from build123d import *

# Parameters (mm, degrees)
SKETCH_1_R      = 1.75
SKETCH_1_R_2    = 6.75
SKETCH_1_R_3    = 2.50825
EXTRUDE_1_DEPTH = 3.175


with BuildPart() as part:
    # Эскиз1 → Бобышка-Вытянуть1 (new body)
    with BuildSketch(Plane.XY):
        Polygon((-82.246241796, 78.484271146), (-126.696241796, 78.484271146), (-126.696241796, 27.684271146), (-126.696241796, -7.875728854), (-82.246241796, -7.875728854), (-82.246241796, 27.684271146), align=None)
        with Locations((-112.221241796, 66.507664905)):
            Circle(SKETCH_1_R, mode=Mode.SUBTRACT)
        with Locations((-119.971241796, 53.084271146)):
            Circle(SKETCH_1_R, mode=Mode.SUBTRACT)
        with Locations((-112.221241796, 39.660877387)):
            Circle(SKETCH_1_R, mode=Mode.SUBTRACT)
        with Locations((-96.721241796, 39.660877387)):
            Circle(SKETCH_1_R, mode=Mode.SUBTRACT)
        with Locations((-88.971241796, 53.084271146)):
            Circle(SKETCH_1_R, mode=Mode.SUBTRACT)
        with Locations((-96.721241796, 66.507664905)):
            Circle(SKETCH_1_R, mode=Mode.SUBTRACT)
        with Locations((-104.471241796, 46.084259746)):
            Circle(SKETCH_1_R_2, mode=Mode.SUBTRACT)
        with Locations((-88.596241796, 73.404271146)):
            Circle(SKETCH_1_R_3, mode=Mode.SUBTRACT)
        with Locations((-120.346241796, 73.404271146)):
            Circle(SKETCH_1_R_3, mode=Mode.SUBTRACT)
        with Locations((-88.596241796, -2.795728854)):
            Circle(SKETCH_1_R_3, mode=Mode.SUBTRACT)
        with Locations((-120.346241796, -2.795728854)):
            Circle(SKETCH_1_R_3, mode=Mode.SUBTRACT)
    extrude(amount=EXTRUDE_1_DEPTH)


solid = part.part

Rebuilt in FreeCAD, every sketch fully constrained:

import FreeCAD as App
import Part
import Sketcher
from FreeCAD import Vector
Q = App.Units.Quantity


def add_polygon(sketch, points):
    """Adds a closed chain of lines whose ends are joined by coincident constraints."""
    first, n = sketch.GeometryCount, len(points)
    for a, b in zip(points, points[1:] + points[:1]):
        sketch.addGeometry(Part.LineSegment(App.Vector(*a, 0), App.Vector(*b, 0)), False)
    for i in range(n):
        sketch.addConstraint(Sketcher.Constraint("Coincident", first + i, 2, first + (i + 1) % n, 1))

doc = App.newDocument("Part")
body = doc.addObject("PartDesign::Body", "Body")

sketch1 = doc.addObject("Sketcher::SketchObject", "Sketch")
body.addObject(sketch1)
sketch1.AttachmentSupport = (doc.XY_Plane, [""])
sketch1.MapMode = "FlatFace"
add_polygon(sketch1, [(-82.2, 78.5), (-126.7, 78.5), (-126.7, -7.9), (-82.2, -7.9)])
sketch1.addGeometry(Part.Circle(Vector(-120.3, -2.8, 0), Vector(0, 0, 1), 2.5), False)
sketch1.addGeometry(Part.Circle(Vector(-88.6, -2.8, 0), Vector(0, 0, 1), 2.5), False)
sketch1.addGeometry(Part.Circle(Vector(-120, 53.1, 0), Vector(0, 0, 1), 1.8), False)
sketch1.addGeometry(Part.Circle(Vector(-112.2, 39.7, 0), Vector(0, 0, 1), 1.8), False)
sketch1.addGeometry(Part.Circle(Vector(-120.3, 73.4, 0), Vector(0, 0, 1), 2.5), False)
sketch1.addGeometry(Part.Circle(Vector(-112.2, 66.5, 0), Vector(0, 0, 1), 1.8), False)
sketch1.addGeometry(Part.Circle(Vector(-96.7, 39.7, 0), Vector(0, 0, 1), 1.8), False)
sketch1.addGeometry(Part.Circle(Vector(-104.5, 46.1, 0), Vector(0, 0, 1), 6.8), False)
sketch1.addGeometry(Part.Circle(Vector(-89, 53.1, 0), Vector(0, 0, 1), 1.8), False)
sketch1.addGeometry(Part.Circle(Vector(-96.7, 66.5, 0), Vector(0, 0, 1), 1.8), False)
sketch1.addGeometry(Part.Circle(Vector(-88.6, 73.4, 0), Vector(0, 0, 1), 2.5), False)
sketch1.addConstraint([
    Sketcher.Constraint("Horizontal", 0),
    Sketcher.Constraint("Vertical", 1),
    Sketcher.Constraint("Horizontal", 2),
    Sketcher.Constraint("Vertical", 3),
    Sketcher.Constraint("Equal", 4, 5),
    Sketcher.Constraint("Equal", 6, 7),
    Sketcher.Constraint("Equal", 5, 8),
    Sketcher.Constraint("Equal", 7, 9),
    Sketcher.Constraint("Equal", 9, 10),
    Sketcher.Constraint("Equal", 10, 12),
    Sketcher.Constraint("Equal", 12, 13),
    Sketcher.Constraint("Equal", 8, 14),
    Sketcher.Constraint("Horizontal", 4, 3, 5, 3),
    Sketcher.Constraint("Horizontal", 7, 3, 10, 3),
    Sketcher.Constraint("Horizontal", 6, 3, 12, 3),
    Sketcher.Constraint("Horizontal", 9, 3, 13, 3),
    Sketcher.Constraint("Horizontal", 8, 3, 14, 3),
    Sketcher.Constraint("Vertical", 4, 3, 8, 3),
    Sketcher.Constraint("Vertical", 7, 3, 9, 3),
    Sketcher.Constraint("Vertical", 10, 3, 13, 3),
    Sketcher.Constraint("Vertical", 5, 3, 14, 3),
    Sketcher.Constraint("DistanceY", 1, 2, 1, 1, Q("3.4 in")),
    Sketcher.Constraint("DistanceY", 4, 3, 8, 3, Q("3 in")),
    Sketcher.Constraint("DistanceY", 6, 3, 0, 2, Q("1 in")),
    Sketcher.Constraint("Diameter", 4, Q("0.1975 in")),
    Sketcher.Constraint("DistanceX", 0, 2, 0, 1, Q("1.75 in")),
    Sketcher.Constraint("DistanceY", 4, 3, 6, 3, Q("2.2 in")),
    Sketcher.Constraint("DistanceX", 0, 2, 14, 3, Q("1.5 in")),
    Sketcher.Constraint("DistanceX", 4, 3, 2, 2, Q("1.5 in")),
    Sketcher.Constraint("Diameter", 6, Q("3.5 mm")),
    Sketcher.Constraint("Diameter", 11, Q("13.5 mm")),
    Sketcher.Constraint("DistanceX", 8, 3, 11, 3, Q("0.625 in")),
    Sketcher.Constraint("DistanceX", 4, 3, 6, 3, Q("0.375 mm")),
    Sketcher.Constraint("DistanceX", 6, 3, 7, 3, Q("7.75 mm")),
    Sketcher.Constraint("DistanceX", 7, 3, 10, 3, Q("15.5 mm")),
    Sketcher.Constraint("DistanceX", 10, 3, 12, 3, Q("7.75 mm")),
    Sketcher.Constraint("DistanceX", 4, 3, -1, 1, Q("120.346242 mm")),
    Sketcher.Constraint("DistanceY", 4, 3, -1, 1, Q("2.795729 mm")),
    Sketcher.Constraint("DistanceY", -1, 1, 11, 3, Q("46.08426 mm")),
    Sketcher.Constraint("DistanceY", -1, 1, 7, 3, Q("39.660877 mm")),
    Sketcher.Constraint("DistanceY", -1, 1, 9, 3, Q("66.507665 mm")),
])
pad1 = doc.addObject("PartDesign::Pad", "Pad")
body.addObject(pad1)
pad1.Profile = sketch1
pad1.Length = Q("0.125 in")

doc.recompute()
